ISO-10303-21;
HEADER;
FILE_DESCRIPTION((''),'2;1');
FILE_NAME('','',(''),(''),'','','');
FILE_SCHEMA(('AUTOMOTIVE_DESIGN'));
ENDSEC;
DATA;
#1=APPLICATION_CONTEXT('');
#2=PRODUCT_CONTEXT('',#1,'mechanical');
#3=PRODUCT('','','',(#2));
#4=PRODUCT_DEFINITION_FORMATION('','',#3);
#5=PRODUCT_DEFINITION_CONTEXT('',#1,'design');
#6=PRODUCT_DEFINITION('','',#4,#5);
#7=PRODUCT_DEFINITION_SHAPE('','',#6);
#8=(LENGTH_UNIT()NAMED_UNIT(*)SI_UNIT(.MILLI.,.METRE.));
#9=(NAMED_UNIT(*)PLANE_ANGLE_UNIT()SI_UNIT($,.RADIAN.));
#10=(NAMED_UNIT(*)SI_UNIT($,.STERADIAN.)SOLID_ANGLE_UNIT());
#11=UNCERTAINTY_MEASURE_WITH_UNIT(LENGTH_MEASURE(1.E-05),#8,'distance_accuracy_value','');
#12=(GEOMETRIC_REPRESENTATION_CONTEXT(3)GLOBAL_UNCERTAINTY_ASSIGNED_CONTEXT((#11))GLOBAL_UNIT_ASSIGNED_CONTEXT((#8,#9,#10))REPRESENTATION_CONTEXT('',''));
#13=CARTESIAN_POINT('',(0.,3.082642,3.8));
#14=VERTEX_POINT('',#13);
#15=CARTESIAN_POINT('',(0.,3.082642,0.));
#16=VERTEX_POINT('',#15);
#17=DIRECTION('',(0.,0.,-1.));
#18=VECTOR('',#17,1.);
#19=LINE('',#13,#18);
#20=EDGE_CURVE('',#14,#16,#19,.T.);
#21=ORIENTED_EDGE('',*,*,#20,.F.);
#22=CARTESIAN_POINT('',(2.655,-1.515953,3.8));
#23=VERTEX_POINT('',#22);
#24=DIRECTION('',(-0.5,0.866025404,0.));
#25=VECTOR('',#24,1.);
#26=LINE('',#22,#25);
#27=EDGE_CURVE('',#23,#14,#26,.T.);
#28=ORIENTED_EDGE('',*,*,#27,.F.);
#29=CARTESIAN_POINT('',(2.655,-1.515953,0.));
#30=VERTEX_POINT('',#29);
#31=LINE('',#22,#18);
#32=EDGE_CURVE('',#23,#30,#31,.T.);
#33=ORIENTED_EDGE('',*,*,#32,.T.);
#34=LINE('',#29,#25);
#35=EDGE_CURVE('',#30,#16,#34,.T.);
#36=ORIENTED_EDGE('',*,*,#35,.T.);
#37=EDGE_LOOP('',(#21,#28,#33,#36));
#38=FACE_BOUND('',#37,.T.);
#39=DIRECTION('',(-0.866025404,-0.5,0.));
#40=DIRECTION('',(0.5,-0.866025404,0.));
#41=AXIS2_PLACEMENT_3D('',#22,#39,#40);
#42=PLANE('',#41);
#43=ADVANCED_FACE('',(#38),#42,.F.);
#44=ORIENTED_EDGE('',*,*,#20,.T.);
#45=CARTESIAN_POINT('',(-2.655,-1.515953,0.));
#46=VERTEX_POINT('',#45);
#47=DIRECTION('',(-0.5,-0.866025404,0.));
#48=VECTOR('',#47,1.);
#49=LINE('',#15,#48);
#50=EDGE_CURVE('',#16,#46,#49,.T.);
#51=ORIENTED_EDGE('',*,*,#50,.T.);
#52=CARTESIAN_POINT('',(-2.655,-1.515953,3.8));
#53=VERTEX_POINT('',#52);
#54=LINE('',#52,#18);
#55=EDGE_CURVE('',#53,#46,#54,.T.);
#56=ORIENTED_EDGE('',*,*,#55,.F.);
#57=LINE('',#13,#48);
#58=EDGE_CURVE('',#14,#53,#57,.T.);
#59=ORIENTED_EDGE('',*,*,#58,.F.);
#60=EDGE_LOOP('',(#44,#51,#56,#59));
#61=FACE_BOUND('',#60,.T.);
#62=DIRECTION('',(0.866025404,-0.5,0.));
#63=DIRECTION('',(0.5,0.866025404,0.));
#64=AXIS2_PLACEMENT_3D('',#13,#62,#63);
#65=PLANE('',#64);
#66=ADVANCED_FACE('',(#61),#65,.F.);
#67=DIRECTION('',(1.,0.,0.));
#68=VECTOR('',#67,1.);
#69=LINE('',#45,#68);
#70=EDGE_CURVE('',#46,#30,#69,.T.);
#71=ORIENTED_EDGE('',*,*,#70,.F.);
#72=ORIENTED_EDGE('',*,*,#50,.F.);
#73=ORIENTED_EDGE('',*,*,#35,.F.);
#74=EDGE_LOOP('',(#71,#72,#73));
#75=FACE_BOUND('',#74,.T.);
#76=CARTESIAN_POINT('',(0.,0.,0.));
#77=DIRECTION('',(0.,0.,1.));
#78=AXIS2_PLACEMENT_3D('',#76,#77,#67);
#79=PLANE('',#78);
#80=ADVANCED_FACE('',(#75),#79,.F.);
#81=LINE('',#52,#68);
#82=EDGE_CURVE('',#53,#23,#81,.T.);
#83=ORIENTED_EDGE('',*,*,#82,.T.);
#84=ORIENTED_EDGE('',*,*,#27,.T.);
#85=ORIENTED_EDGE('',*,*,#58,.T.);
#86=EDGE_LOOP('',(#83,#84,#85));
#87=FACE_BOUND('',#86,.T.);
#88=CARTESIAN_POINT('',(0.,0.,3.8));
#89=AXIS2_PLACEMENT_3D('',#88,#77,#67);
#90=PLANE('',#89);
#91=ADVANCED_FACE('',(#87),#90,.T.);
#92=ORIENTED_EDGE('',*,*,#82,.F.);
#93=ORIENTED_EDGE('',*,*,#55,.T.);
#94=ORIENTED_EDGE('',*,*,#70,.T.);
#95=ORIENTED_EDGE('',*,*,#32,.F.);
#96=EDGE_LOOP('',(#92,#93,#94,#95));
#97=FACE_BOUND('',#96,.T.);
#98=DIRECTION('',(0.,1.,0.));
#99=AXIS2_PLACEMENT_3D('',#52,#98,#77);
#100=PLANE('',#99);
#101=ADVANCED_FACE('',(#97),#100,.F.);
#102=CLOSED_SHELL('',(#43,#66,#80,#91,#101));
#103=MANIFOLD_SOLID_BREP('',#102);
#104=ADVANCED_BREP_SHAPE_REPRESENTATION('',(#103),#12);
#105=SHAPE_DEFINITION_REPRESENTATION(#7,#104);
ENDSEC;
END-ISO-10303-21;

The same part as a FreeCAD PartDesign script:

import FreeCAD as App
import Part
import Sketcher

V = App.Vector
Q = App.Units.Quantity

doc = App.newDocument("Part")
params = doc.addObject("Spreadsheet::Sheet", "Params")
for row, (alias, value) in enumerate([
    ("sketch1_width", "5.31 mm"),
    ("pad1_length", "3.8 mm"),
], start=1):
    params.set(f"A{row}", alias)
    params.set(f"B{row}", "=" + value)
    params.setAlias(f"B{row}", alias)

body = doc.addObject("PartDesign::Body", "Body")

sketch1 = body.newObject("Sketcher::SketchObject", "Sketch")
sketch1.AttachmentSupport = (doc.getObject("XY_Plane"), [""])
sketch1.MapMode = "FlatFace"
sketch1.addGeometry([
    Part.LineSegment(V(-2.655, -1.515953, 0), V(2.655, -1.515953, 0)),
    Part.LineSegment(V(2.655, -1.515953, 0), V(0, 3.082642, 0)),
    Part.LineSegment(V(0, 3.082642, 0), V(-2.655, -1.515953, 0)),
], False)
sketch1.addConstraint([
    Sketcher.Constraint("Coincident", 0, 2, 1, 1),
    Sketcher.Constraint("Coincident", 1, 2, 2, 1),
    Sketcher.Constraint("Coincident", 2, 2, 0, 1),
    Sketcher.Constraint("Horizontal", 0),
    Sketcher.Constraint("PointOnObject", 1, 2, -2),
    Sketcher.Constraint("Equal", 1, 2),
    Sketcher.Constraint("Angle", 1, Q("120 deg")),
    Sketcher.Constraint("DistanceX", 0, 1, 0, 2, Q("5.31 mm")),
    Sketcher.Constraint("DistanceY", 0, 2, -1, 1, Q("1.515953 mm")),
])
sketch1.setExpression("Constraints[7]", "Params.sketch1_width")
pad1 = body.newObject("PartDesign::Pad", "Pad")
pad1.Profile = sketch1
pad1.setExpression("Length", "Params.pad1_length")

doc.recompute()
